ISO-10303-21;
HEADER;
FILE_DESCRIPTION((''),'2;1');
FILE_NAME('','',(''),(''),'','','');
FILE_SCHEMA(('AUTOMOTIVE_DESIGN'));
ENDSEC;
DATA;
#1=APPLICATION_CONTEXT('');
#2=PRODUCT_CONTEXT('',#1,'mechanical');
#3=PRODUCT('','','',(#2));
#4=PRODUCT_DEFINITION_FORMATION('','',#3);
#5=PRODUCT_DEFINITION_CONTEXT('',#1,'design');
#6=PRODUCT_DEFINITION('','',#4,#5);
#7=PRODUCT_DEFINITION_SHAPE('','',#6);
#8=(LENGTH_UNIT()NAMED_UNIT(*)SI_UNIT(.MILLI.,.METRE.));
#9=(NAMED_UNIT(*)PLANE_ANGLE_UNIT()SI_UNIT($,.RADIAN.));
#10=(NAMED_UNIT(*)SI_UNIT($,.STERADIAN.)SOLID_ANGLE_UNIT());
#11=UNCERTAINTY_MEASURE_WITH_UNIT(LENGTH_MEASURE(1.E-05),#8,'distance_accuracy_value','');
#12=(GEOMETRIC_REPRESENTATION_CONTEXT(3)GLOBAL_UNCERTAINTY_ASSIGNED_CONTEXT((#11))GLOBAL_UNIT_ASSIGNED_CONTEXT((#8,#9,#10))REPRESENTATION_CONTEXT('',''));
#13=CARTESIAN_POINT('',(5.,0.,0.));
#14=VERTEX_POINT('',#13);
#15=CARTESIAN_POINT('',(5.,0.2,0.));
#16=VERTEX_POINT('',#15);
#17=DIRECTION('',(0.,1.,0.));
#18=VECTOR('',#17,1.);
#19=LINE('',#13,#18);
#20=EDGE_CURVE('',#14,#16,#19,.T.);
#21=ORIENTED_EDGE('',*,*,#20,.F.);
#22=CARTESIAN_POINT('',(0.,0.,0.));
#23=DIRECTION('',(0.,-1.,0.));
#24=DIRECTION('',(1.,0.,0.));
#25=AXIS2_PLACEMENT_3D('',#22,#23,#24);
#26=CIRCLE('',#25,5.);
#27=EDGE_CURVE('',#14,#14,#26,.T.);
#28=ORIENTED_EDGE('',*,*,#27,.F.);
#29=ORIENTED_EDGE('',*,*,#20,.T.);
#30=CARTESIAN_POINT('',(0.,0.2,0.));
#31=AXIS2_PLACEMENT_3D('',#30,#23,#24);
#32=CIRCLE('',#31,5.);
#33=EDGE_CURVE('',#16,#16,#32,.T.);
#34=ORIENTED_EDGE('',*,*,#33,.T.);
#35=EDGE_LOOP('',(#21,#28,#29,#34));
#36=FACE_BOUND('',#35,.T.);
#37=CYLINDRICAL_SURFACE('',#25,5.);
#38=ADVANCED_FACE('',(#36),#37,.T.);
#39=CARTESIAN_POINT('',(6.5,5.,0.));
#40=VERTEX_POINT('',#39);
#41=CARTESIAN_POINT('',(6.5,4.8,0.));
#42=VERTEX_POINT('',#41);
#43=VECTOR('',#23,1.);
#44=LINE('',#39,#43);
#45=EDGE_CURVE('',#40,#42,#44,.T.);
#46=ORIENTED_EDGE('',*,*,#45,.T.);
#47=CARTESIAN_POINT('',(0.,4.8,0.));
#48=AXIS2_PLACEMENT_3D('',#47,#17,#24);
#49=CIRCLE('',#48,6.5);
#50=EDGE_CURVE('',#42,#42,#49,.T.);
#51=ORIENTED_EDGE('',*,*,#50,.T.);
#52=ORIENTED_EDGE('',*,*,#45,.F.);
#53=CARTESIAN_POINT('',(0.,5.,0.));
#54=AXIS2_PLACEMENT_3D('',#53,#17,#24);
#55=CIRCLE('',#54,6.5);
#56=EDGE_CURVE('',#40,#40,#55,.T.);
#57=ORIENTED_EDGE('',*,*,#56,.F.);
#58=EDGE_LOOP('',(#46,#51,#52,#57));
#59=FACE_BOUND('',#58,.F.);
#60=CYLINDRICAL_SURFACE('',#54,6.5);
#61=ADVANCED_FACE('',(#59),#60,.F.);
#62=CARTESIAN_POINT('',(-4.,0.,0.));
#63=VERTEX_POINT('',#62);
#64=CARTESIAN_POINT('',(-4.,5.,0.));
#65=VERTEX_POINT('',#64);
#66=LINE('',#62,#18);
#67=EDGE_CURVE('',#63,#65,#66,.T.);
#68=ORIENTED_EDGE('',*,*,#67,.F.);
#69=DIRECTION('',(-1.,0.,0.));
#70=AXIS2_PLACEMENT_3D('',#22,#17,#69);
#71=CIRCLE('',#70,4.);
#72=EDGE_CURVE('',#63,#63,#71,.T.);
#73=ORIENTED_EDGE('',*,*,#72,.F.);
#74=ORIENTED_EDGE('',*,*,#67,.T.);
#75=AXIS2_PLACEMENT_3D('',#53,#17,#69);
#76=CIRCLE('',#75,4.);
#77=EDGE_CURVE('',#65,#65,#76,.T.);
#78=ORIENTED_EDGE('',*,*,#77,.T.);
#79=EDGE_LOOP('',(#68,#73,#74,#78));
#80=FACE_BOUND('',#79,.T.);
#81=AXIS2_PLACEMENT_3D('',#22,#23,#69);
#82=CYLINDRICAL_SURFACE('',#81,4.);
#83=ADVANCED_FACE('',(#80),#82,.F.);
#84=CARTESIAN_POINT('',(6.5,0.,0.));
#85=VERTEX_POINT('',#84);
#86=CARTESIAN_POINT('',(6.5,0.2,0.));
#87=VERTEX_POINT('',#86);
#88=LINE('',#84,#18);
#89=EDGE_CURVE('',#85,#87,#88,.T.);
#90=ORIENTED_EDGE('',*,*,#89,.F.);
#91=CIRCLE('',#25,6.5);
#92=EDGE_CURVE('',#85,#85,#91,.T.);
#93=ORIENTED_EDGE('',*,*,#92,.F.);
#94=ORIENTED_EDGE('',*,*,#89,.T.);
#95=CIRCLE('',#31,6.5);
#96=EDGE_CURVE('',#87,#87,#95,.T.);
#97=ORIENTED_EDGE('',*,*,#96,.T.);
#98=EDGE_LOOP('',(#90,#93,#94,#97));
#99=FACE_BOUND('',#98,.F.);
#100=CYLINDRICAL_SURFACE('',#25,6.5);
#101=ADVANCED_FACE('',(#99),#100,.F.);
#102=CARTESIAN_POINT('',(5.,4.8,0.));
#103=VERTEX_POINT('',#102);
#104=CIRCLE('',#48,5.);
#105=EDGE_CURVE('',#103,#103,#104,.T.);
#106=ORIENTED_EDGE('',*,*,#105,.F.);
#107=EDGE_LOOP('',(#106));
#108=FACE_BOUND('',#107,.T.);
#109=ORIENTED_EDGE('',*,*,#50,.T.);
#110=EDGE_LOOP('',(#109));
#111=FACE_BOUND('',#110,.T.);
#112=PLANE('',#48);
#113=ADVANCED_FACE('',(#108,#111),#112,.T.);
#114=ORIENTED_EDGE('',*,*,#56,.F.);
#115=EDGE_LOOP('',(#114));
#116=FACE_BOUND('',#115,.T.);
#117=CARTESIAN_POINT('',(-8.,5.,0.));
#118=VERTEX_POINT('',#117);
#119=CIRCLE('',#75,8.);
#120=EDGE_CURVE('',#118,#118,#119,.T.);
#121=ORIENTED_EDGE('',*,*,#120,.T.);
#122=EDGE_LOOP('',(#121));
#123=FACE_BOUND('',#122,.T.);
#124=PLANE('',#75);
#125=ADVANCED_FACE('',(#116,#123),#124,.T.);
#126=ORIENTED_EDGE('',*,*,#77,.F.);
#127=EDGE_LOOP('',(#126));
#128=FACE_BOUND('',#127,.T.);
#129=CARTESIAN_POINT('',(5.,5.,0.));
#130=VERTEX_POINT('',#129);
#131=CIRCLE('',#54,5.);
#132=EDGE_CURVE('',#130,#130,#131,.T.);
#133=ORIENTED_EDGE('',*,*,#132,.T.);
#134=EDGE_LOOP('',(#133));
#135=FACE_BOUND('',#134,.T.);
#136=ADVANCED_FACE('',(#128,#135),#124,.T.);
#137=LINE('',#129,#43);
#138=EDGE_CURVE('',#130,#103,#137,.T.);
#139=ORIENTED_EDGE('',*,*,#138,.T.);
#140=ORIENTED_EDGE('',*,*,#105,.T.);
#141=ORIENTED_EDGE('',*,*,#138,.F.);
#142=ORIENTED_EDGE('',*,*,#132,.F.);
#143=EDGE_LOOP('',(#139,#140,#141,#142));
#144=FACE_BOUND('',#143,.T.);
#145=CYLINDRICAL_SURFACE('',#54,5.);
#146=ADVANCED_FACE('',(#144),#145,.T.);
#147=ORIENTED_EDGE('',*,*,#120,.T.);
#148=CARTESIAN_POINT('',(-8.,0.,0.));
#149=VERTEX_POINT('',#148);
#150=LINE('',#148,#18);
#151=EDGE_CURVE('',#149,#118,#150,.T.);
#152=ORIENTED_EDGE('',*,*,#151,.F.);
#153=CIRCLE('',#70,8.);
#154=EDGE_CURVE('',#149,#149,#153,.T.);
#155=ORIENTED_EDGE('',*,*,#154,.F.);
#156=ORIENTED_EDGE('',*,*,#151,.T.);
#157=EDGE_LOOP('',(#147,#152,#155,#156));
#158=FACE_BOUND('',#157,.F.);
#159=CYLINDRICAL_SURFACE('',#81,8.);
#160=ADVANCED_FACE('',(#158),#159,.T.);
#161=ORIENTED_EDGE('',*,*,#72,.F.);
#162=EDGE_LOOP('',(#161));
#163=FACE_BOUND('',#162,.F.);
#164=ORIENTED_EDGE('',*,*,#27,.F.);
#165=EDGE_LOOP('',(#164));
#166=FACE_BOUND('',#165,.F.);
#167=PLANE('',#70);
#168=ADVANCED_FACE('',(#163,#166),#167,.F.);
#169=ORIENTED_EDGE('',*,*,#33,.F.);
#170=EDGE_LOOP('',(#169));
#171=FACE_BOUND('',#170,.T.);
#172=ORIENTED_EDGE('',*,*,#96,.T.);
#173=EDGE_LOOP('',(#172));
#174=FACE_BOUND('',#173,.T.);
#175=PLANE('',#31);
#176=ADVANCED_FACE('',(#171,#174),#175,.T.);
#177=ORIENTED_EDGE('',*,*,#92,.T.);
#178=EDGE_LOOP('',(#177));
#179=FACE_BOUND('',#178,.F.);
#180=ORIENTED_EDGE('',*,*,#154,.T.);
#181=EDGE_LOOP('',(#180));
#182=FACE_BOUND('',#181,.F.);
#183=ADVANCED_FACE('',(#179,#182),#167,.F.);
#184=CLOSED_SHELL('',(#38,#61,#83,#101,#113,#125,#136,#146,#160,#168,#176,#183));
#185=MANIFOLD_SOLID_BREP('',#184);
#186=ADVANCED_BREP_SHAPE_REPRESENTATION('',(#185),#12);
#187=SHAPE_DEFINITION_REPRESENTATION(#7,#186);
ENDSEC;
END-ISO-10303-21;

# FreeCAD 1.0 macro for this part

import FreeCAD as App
import Part
import Sketcher
from FreeCAD import Vector

doc = App.newDocument("Part")
body = doc.addObject("PartDesign::Body", "Body")

sketch1 = body.newObject("Sketcher::SketchObject", "Sketch")
sketch1.AttachmentSupport = (doc.getObject("XZ_Plane"), [""])
sketch1.MapMode = "FlatFace"
sketch1.addGeometry(Part.Circle(Vector(0, 0, 0), Vector(0, 0, 1), 8), False)
sketch1.addGeometry(Part.Circle(Vector(0, 0, 0), Vector(0, 0, 1), 4), False)
sketch1.addConstraint(Sketcher.Constraint("Coincident", 0, 3, -1, 1))
sketch1.addConstraint(Sketcher.Constraint("Coincident", 1, 3, -1, 1))
sketch1.addConstraint(Sketcher.Constraint("Diameter", 0, 16.0))
sketch1.addConstraint(Sketcher.Constraint("Diameter", 1, 8.0))
pad1 = body.newObject("PartDesign::Pad", "Pad")
pad1.Profile = sketch1
pad1.Length = 5
pad1.Reversed = True

sketch2 = body.newObject("Sketcher::SketchObject", "Sketch001")
sketch2.AttachmentSupport = (doc.getObject("XZ_Plane"), [""])
sketch2.MapMode = "FlatFace"
sketch2.AttachmentOffset = App.Placement(Vector(0, 0, -5), App.Rotation())
sketch2.addGeometry(Part.Circle(Vector(0, 0, 0), Vector(0, 0, 1), 6), False)
sketch2.addGeometry(Part.Circle(Vector(0, 0, 0), Vector(0, 0, 1), 5), False)
sketch2.addConstraint(Sketcher.Constraint("Coincident", 0, 3, -1, 1))
sketch2.addConstraint(Sketcher.Constraint("Coincident", 1, 3, -1, 1))
sketch2.addConstraint(Sketcher.Constraint("Diameter", 0, 13.0))
sketch2.addConstraint(Sketcher.Constraint("Diameter", 1, 10.0))
pocket1 = body.newObject("PartDesign::Pocket", "Pocket")
pocket1.Profile = sketch2
pocket1.Length = 0.2
pocket1.Reversed = True

sketch3 = body.newObject("Sketcher::SketchObject", "Sketch002")
sketch3.AttachmentSupport = (doc.getObject("XZ_Plane"), [""])
sketch3.MapMode = "FlatFace"
sketch3.addGeometry(Part.Circle(Vector(0, 0, 0), Vector(0, 0, 1), 6), False)
sketch3.addGeometry(Part.Circle(Vector(0, 0, 0), Vector(0, 0, 1), 5), False)
sketch3.addConstraint(Sketcher.Constraint("Coincident", 0, 3, -1, 1))
sketch3.addConstraint(Sketcher.Constraint("Coincident", 1, 3, -1, 1))
sketch3.addConstraint(Sketcher.Constraint("Diameter", 0, 13.0))
sketch3.addConstraint(Sketcher.Constraint("Diameter", 1, 10.0))
pocket2 = body.newObject("PartDesign::Pocket", "Pocket001")
pocket2.Profile = sketch3
pocket2.Length = 0.2

doc.recompute()
